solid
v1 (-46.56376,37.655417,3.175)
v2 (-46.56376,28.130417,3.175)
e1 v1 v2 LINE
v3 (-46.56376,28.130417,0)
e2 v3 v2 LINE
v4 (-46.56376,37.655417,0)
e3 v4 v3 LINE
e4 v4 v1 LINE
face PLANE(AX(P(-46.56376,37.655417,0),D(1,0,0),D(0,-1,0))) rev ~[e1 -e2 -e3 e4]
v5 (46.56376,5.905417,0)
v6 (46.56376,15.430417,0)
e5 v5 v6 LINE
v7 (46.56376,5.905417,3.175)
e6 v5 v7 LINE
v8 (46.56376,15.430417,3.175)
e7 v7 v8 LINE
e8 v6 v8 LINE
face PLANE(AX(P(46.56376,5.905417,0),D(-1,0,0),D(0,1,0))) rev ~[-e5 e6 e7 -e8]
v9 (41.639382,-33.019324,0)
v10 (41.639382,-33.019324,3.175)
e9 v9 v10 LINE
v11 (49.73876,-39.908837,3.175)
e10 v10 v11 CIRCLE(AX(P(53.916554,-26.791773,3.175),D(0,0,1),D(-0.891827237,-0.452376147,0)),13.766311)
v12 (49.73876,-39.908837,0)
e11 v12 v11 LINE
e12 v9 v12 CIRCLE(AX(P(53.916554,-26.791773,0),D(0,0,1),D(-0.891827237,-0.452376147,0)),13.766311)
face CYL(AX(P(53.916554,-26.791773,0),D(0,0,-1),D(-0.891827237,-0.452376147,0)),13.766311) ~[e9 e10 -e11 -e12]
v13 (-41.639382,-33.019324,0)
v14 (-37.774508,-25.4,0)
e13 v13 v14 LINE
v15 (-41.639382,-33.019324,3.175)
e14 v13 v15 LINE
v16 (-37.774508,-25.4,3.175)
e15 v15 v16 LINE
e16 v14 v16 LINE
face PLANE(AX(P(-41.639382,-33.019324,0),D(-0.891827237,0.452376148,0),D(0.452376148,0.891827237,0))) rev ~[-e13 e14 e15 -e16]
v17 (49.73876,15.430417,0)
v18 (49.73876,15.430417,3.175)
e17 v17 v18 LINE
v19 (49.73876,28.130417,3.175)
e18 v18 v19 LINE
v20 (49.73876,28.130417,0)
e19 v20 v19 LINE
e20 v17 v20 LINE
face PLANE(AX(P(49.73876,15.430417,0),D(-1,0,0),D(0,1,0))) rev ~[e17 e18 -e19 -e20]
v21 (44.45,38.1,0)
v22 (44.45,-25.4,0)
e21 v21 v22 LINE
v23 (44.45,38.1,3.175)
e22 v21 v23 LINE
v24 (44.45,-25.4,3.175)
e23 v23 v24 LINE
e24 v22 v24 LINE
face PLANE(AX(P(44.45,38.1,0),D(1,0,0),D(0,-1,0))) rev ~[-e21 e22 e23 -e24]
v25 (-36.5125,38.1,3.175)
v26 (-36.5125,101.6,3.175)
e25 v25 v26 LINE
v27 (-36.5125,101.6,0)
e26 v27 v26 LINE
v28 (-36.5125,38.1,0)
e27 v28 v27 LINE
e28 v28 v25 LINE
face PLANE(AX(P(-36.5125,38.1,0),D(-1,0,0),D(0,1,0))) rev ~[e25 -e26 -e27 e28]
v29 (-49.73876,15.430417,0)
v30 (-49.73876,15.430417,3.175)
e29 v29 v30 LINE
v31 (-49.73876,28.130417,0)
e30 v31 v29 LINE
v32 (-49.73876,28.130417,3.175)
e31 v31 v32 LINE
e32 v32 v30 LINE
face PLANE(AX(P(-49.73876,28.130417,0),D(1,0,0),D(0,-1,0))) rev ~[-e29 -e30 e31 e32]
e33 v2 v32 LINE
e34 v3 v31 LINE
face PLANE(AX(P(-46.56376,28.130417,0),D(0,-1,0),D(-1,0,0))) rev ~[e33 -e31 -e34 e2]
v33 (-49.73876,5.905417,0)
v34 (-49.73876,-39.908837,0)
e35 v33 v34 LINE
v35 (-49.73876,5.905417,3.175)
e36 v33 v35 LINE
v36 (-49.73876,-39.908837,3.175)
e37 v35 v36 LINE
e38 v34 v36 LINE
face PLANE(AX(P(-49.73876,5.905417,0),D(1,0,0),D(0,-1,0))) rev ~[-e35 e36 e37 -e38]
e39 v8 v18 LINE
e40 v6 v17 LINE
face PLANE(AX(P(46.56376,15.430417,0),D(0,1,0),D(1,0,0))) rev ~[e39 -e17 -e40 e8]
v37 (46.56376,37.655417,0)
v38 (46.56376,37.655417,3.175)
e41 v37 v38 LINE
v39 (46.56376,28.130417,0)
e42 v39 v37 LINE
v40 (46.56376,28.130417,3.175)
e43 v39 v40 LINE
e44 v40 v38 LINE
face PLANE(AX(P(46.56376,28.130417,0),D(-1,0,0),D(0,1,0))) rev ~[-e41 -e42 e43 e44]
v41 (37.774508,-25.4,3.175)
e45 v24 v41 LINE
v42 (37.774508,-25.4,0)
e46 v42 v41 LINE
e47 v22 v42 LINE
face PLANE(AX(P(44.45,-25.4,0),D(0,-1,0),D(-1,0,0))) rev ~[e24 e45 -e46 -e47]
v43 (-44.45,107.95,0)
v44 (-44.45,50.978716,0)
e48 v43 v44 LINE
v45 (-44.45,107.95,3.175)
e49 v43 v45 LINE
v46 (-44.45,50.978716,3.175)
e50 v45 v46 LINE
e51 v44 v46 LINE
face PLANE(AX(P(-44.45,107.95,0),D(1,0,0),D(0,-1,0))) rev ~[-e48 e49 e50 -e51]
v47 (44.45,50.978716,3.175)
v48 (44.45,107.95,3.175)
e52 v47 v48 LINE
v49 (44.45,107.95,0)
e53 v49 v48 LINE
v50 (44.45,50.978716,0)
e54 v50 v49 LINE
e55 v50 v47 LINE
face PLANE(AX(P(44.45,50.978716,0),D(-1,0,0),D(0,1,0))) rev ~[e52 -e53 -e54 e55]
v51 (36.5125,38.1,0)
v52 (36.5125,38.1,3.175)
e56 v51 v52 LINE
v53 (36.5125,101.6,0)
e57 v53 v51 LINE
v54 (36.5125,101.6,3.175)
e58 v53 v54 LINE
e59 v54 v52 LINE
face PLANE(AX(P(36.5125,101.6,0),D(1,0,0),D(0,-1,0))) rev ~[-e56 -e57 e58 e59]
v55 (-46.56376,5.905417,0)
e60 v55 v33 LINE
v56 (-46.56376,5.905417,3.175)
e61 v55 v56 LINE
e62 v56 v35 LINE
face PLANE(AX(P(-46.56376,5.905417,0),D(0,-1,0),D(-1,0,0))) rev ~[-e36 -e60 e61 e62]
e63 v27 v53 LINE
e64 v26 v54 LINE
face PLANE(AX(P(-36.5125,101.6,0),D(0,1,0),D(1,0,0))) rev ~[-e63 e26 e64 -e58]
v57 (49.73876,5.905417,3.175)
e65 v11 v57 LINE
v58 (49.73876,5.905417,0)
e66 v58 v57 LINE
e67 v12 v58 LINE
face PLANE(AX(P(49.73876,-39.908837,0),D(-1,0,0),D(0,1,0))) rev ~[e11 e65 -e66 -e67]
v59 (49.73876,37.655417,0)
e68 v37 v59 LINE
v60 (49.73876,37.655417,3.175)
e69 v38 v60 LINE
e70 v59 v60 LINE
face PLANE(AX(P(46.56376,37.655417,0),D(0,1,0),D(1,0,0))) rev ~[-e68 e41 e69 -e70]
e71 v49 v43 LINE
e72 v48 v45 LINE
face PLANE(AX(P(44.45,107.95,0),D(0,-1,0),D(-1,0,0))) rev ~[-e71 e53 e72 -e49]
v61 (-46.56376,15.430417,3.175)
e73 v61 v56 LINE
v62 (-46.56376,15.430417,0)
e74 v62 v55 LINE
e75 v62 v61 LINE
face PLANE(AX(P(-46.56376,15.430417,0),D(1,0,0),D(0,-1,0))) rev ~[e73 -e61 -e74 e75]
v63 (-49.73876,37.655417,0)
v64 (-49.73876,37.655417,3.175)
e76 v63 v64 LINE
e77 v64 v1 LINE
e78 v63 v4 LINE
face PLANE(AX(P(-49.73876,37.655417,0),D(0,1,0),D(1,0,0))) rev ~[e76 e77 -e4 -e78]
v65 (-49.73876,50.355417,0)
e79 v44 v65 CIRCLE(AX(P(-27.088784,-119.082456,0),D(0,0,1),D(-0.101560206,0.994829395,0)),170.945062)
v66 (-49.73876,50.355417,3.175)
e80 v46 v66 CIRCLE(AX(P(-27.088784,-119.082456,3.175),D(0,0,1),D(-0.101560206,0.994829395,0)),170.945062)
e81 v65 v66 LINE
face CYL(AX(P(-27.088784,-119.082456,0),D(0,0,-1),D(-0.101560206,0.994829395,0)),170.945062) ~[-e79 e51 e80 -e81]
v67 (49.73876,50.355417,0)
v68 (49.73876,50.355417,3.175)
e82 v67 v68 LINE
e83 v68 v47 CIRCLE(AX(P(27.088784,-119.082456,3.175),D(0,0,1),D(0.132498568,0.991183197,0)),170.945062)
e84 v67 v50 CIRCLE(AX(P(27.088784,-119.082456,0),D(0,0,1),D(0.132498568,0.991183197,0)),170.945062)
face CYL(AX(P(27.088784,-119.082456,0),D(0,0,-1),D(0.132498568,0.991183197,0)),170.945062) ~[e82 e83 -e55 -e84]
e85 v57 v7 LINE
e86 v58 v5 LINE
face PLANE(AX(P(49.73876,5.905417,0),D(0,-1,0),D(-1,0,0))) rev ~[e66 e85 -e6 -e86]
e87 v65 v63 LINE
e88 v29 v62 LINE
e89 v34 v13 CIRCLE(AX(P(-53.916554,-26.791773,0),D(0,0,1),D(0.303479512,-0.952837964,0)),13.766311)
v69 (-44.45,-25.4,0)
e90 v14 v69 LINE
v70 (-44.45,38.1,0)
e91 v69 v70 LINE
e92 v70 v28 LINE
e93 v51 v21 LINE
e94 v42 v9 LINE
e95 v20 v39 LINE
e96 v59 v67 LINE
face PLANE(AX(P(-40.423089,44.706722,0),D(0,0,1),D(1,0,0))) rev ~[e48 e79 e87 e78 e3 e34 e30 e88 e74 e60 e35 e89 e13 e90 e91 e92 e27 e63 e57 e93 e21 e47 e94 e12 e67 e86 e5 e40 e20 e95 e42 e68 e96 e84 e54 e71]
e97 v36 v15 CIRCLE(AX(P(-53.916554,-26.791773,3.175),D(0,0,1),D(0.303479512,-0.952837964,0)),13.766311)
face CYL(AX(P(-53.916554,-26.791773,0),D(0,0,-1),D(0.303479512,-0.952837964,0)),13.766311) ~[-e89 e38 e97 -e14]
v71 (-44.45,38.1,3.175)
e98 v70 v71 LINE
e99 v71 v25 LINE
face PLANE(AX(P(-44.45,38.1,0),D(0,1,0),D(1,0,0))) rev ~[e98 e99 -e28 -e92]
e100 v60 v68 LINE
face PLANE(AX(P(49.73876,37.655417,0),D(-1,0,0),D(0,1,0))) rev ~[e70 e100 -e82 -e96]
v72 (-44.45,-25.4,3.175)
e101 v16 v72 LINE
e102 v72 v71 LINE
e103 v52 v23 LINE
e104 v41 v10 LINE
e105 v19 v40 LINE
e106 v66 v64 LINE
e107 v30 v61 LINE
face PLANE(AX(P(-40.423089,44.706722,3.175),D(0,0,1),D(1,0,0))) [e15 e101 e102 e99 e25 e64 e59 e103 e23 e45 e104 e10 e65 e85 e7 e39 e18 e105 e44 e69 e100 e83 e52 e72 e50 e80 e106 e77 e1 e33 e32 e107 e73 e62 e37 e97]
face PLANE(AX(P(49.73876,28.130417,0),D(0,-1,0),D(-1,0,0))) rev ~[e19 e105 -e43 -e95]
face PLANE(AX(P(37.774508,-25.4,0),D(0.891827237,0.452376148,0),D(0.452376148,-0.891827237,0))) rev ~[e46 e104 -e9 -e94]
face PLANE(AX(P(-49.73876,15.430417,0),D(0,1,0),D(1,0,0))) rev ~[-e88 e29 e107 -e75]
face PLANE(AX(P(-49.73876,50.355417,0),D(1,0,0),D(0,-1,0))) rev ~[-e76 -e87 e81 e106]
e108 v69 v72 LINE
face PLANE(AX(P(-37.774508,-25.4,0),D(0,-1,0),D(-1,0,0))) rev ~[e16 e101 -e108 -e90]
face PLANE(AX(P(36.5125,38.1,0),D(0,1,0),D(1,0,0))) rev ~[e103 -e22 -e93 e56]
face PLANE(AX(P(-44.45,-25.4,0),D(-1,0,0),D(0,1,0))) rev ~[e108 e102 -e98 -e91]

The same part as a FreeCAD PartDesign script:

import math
import FreeCAD as App
import Part
import Sketcher
from FreeCAD import Vector
Q = App.Units.Quantity

doc = App.newDocument("Part")
body = doc.addObject("PartDesign::Body", "Body")

# Sketch on XY plane
sketch1 = body.newObject("Sketcher::SketchObject", "Sketch")
sketch1.AttachmentSupport = (doc.getObject("XY_Plane"), [""])
sketch1.MapMode = "FlatFace"
sketch1.addGeometry([
    Part.LineSegment(Vector(-36.5, 38.1, 0), Vector(-36.5, 101.6, 0)),  # 0
    Part.LineSegment(Vector(-36.5, 101.6, 0), Vector(36.5, 101.6, 0)),  # 1
    Part.LineSegment(Vector(36.5, 101.6, 0), Vector(36.5, 38.1, 0)),  # 2
    Part.LineSegment(Vector(36.5, 38.1, 0), Vector(44.5, 38.1, 0)),  # 3
    Part.LineSegment(Vector(44.5, 38.1, 0), Vector(44.5, -25.4, 0)),  # 4
    Part.LineSegment(Vector(44.5, -25.4, 0), Vector(37.8, -25.4, 0)),  # 5
    Part.LineSegment(Vector(37.8, -25.4, 0), Vector(41.6, -33, 0)),  # 6
    Part.ArcOfCircle(Part.Circle(Vector(53.9, -26.8, 0), Vector(0, 0, 1), 13.8), math.radians(-153), math.radians(-108)),  # 7
    Part.LineSegment(Vector(49.7, -39.9, 0), Vector(49.7, 5.9, 0)),  # 8
    Part.LineSegment(Vector(49.7, 5.9, 0), Vector(46.6, 5.9, 0)),  # 9
    Part.LineSegment(Vector(46.6, 5.9, 0), Vector(46.6, 15.4, 0)),  # 10
    Part.LineSegment(Vector(46.6, 15.4, 0), Vector(49.7, 15.4, 0)),  # 11
    Part.LineSegment(Vector(49.7, 15.4, 0), Vector(49.7, 28.1, 0)),  # 12
    Part.LineSegment(Vector(49.7, 28.1, 0), Vector(46.6, 28.1, 0)),  # 13
    Part.LineSegment(Vector(46.6, 28.1, 0), Vector(46.6, 37.7, 0)),  # 14
    Part.LineSegment(Vector(46.6, 37.7, 0), Vector(49.7, 37.7, 0)),  # 15
    Part.LineSegment(Vector(49.7, 37.7, 0), Vector(49.7, 50.4, 0)),  # 16
    Part.ArcOfCircle(Part.Circle(Vector(27.1, -119.1, 0), Vector(0, 0, 1), 170.9), math.radians(82.39), math.radians(84.17)),  # 17
    Part.LineSegment(Vector(44.5, 51, 0), Vector(44.5, 108, 0)),  # 18
    Part.LineSegment(Vector(44.5, 108, 0), Vector(-44.5, 108, 0)),  # 19
    Part.LineSegment(Vector(-44.5, 108, 0), Vector(-44.5, 51, 0)),  # 20
    Part.ArcOfCircle(Part.Circle(Vector(-27.1, -119.1, 0), Vector(0, 0, 1), 170.9), math.radians(95.83), math.radians(97.61)),  # 21
    Part.LineSegment(Vector(-49.7, 50.4, 0), Vector(-49.7, 37.7, 0)),  # 22
    Part.LineSegment(Vector(-49.7, 37.7, 0), Vector(-46.6, 37.7, 0)),  # 23
    Part.LineSegment(Vector(-46.6, 37.7, 0), Vector(-46.6, 28.1, 0)),  # 24
    Part.LineSegment(Vector(-46.6, 28.1, 0), Vector(-49.7, 28.1, 0)),  # 25
    Part.LineSegment(Vector(-49.7, 28.1, 0), Vector(-49.7, 15.4, 0)),  # 26
    Part.LineSegment(Vector(-49.7, 15.4, 0), Vector(-46.6, 15.4, 0)),  # 27
    Part.LineSegment(Vector(-46.6, 15.4, 0), Vector(-46.6, 5.9, 0)),  # 28
    Part.LineSegment(Vector(-46.6, 5.9, 0), Vector(-49.7, 5.9, 0)),  # 29
    Part.LineSegment(Vector(-49.7, 5.9, 0), Vector(-49.7, -39.9, 0)),  # 30
    Part.ArcOfCircle(Part.Circle(Vector(-53.9, -26.8, 0), Vector(0, 0, 1), 13.8), math.radians(-72), math.radians(-27)),  # 31
    Part.LineSegment(Vector(-41.6, -33, 0), Vector(-37.8, -25.4, 0)),  # 32
    Part.LineSegment(Vector(-37.8, -25.4, 0), Vector(-44.5, -25.4, 0)),  # 33
    Part.LineSegment(Vector(-44.5, -25.4, 0), Vector(-44.5, 38.1, 0)),  # 34
    Part.LineSegment(Vector(-44.5, 38.1, 0), Vector(-36.5, 38.1, 0)),  # 35
], False)
sketch1.addConstraint([
    Sketcher.Constraint("Coincident", 0, 2, 1, 1),
    Sketcher.Constraint("Coincident", 1, 2, 2, 1),
    Sketcher.Constraint("Coincident", 2, 2, 3, 1),
    Sketcher.Constraint("Coincident", 3, 2, 4, 1),
    Sketcher.Constraint("Coincident", 4, 2, 5, 1),
    Sketcher.Constraint("Coincident", 5, 2, 6, 1),
    Sketcher.Constraint("Tangent", 6, 2, 7, 1),
    Sketcher.Constraint("Coincident", 7, 2, 8, 1),
    Sketcher.Constraint("Coincident", 8, 2, 9, 1),
    Sketcher.Constraint("Coincident", 9, 2, 10, 1),
    Sketcher.Constraint("Coincident", 10, 2, 11, 1),
    Sketcher.Constraint("Coincident", 11, 2, 12, 1),
    Sketcher.Constraint("Coincident", 12, 2, 13, 1),
    Sketcher.Constraint("Coincident", 13, 2, 14, 1),
    Sketcher.Constraint("Coincident", 14, 2, 15, 1),
    Sketcher.Constraint("Coincident", 15, 2, 16, 1),
    Sketcher.Constraint("Coincident", 16, 2, 17, 1),
    Sketcher.Constraint("Coincident", 17, 2, 18, 1),
    Sketcher.Constraint("Coincident", 18, 2, 19, 1),
    Sketcher.Constraint("Coincident", 19, 2, 20, 1),
    Sketcher.Constraint("Coincident", 20, 2, 21, 1),
    Sketcher.Constraint("Coincident", 21, 2, 22, 1),
    Sketcher.Constraint("Coincident", 22, 2, 23, 1),
    Sketcher.Constraint("Coincident", 23, 2, 24, 1),
    Sketcher.Constraint("Coincident", 24, 2, 25, 1),
    Sketcher.Constraint("Coincident", 25, 2, 26, 1),
    Sketcher.Constraint("Coincident", 26, 2, 27, 1),
    Sketcher.Constraint("Coincident", 27, 2, 28, 1),
    Sketcher.Constraint("Coincident", 28, 2, 29, 1),
    Sketcher.Constraint("Coincident", 29, 2, 30, 1),
    Sketcher.Constraint("Coincident", 30, 2, 31, 1),
    Sketcher.Constraint("Tangent", 31, 2, 32, 1),
    Sketcher.Constraint("Coincident", 32, 2, 33, 1),
    Sketcher.Constraint("Coincident", 33, 2, 34, 1),
    Sketcher.Constraint("Coincident", 34, 2, 35, 1),
    Sketcher.Constraint("Coincident", 35, 2, 0, 1),
    Sketcher.Constraint("Vertical", 0),
    Sketcher.Constraint("Horizontal", 1),
    Sketcher.Constraint("Vertical", 2),
    Sketcher.Constraint("Horizontal", 3),
    Sketcher.Constraint("Vertical", 4),
    Sketcher.Constraint("Horizontal", 5),
    Sketcher.Constraint("Vertical", 8),
    Sketcher.Constraint("Horizontal", 9),
    Sketcher.Constraint("Vertical", 10),
    Sketcher.Constraint("Horizontal", 11),
    Sketcher.Constraint("Vertical", 12),
    Sketcher.Constraint("Horizontal", 13),
    Sketcher.Constraint("Vertical", 14),
    Sketcher.Constraint("Horizontal", 15),
    Sketcher.Constraint("Vertical", 16),
    Sketcher.Constraint("Vertical", 18),
    Sketcher.Constraint("Horizontal", 19),
    Sketcher.Constraint("Vertical", 20),
    Sketcher.Constraint("Vertical", 22),
    Sketcher.Constraint("Horizontal", 23),
    Sketcher.Constraint("Vertical", 24),
    Sketcher.Constraint("Horizontal", 25),
    Sketcher.Constraint("Vertical", 26),
    Sketcher.Constraint("Horizontal", 27),
    Sketcher.Constraint("Vertical", 28),
    Sketcher.Constraint("Horizontal", 29),
    Sketcher.Constraint("Vertical", 30),
    Sketcher.Constraint("Horizontal", 33),
    Sketcher.Constraint("Vertical", 34),
    Sketcher.Constraint("Horizontal", 35),
    Sketcher.Constraint("Equal", 17, 21),
    Sketcher.Constraint("Equal", 7, 31),
    Sketcher.Constraint("Symmetric", 17, 3, 21, 3, -2),
    Sketcher.Constraint("Symmetric", 7, 3, 31, 3, -2),
    Sketcher.Constraint("Symmetric", 15, 2, 22, 2, -2),
    Sketcher.Constraint("Symmetric", 13, 2, 24, 2, -2),
    Sketcher.Constraint("Symmetric", 11, 2, 26, 2, -2),
    Sketcher.Constraint("Symmetric", 9, 2, 28, 2, -2),
    Sketcher.Constraint("Symmetric", 5, 2, 32, 2, -2),
    Sketcher.Constraint("Symmetric", 3, 2, 34, 2, -2),
    Sketcher.Constraint("Horizontal", 17, 2, 20, 2),
    Sketcher.Constraint("Horizontal", 7, 2, 30, 2),
    Sketcher.Constraint("Vertical", 8, 2, 11, 2),
    Sketcher.Constraint("Vertical", 10, 2, 13, 2),
    Sketcher.Constraint("Vertical", 12, 2, 15, 2),
    Sketcher.Constraint("Vertical", 4, 2, 17, 2),
    Sketcher.Constraint("Equal", 3, 35),
    Sketcher.Constraint("Equal", 2, 4),
    Sketcher.Constraint("Equal", 10, 14),
    Sketcher.Constraint("Equal", 12, 16),
    Sketcher.Constraint("DistanceX", 19, 2, 19, 1, Q("3.5 in")),
    Sketcher.Constraint("DistanceY", 0, 1, 0, 2, Q("2.5 in")),
    Sketcher.Constraint("DistanceY", 12, 1, 12, 2, Q("0.5 in")),
    Sketcher.Constraint("DistanceY", -1, 1, 0, 2, Q("4 in")),
    Sketcher.Constraint("DistanceX", 1, 1, 1, 2, Q("2.875 in")),
    Sketcher.Constraint("DistanceX", 9, 2, 9, 1, Q("0.125 in")),
    Sketcher.Constraint("DistanceY", 10, 1, 10, 2, Q("0.375 in")),
    Sketcher.Constraint("DistanceY", -1, 1, 18, 2, Q("4.25 in")),
    Sketcher.Constraint("Radius", 7, 13.766311),
    Sketcher.Constraint("Radius", 17, 170.945062),
    Sketcher.Constraint("Distance", 6, 8.543498),
    Sketcher.Constraint("DistanceY", 22, 2, 20, 2, 13.3233),
    Sketcher.Constraint("DistanceX", 5, 2, 5, 1, 6.675492),
    Sketcher.Constraint("DistanceY", 8, 1, 8, 2, 45.814254),
    Sketcher.Constraint("DistanceY", 18, 1, 18, 2, 56.971284),
    Sketcher.Constraint("DistanceX", -1, 1, 7, 2, 49.73876),
])
pad1 = body.newObject("PartDesign::Pad", "Pad")
pad1.Profile = sketch1
pad1.Length = Q("0.125 in")

doc.recompute()
